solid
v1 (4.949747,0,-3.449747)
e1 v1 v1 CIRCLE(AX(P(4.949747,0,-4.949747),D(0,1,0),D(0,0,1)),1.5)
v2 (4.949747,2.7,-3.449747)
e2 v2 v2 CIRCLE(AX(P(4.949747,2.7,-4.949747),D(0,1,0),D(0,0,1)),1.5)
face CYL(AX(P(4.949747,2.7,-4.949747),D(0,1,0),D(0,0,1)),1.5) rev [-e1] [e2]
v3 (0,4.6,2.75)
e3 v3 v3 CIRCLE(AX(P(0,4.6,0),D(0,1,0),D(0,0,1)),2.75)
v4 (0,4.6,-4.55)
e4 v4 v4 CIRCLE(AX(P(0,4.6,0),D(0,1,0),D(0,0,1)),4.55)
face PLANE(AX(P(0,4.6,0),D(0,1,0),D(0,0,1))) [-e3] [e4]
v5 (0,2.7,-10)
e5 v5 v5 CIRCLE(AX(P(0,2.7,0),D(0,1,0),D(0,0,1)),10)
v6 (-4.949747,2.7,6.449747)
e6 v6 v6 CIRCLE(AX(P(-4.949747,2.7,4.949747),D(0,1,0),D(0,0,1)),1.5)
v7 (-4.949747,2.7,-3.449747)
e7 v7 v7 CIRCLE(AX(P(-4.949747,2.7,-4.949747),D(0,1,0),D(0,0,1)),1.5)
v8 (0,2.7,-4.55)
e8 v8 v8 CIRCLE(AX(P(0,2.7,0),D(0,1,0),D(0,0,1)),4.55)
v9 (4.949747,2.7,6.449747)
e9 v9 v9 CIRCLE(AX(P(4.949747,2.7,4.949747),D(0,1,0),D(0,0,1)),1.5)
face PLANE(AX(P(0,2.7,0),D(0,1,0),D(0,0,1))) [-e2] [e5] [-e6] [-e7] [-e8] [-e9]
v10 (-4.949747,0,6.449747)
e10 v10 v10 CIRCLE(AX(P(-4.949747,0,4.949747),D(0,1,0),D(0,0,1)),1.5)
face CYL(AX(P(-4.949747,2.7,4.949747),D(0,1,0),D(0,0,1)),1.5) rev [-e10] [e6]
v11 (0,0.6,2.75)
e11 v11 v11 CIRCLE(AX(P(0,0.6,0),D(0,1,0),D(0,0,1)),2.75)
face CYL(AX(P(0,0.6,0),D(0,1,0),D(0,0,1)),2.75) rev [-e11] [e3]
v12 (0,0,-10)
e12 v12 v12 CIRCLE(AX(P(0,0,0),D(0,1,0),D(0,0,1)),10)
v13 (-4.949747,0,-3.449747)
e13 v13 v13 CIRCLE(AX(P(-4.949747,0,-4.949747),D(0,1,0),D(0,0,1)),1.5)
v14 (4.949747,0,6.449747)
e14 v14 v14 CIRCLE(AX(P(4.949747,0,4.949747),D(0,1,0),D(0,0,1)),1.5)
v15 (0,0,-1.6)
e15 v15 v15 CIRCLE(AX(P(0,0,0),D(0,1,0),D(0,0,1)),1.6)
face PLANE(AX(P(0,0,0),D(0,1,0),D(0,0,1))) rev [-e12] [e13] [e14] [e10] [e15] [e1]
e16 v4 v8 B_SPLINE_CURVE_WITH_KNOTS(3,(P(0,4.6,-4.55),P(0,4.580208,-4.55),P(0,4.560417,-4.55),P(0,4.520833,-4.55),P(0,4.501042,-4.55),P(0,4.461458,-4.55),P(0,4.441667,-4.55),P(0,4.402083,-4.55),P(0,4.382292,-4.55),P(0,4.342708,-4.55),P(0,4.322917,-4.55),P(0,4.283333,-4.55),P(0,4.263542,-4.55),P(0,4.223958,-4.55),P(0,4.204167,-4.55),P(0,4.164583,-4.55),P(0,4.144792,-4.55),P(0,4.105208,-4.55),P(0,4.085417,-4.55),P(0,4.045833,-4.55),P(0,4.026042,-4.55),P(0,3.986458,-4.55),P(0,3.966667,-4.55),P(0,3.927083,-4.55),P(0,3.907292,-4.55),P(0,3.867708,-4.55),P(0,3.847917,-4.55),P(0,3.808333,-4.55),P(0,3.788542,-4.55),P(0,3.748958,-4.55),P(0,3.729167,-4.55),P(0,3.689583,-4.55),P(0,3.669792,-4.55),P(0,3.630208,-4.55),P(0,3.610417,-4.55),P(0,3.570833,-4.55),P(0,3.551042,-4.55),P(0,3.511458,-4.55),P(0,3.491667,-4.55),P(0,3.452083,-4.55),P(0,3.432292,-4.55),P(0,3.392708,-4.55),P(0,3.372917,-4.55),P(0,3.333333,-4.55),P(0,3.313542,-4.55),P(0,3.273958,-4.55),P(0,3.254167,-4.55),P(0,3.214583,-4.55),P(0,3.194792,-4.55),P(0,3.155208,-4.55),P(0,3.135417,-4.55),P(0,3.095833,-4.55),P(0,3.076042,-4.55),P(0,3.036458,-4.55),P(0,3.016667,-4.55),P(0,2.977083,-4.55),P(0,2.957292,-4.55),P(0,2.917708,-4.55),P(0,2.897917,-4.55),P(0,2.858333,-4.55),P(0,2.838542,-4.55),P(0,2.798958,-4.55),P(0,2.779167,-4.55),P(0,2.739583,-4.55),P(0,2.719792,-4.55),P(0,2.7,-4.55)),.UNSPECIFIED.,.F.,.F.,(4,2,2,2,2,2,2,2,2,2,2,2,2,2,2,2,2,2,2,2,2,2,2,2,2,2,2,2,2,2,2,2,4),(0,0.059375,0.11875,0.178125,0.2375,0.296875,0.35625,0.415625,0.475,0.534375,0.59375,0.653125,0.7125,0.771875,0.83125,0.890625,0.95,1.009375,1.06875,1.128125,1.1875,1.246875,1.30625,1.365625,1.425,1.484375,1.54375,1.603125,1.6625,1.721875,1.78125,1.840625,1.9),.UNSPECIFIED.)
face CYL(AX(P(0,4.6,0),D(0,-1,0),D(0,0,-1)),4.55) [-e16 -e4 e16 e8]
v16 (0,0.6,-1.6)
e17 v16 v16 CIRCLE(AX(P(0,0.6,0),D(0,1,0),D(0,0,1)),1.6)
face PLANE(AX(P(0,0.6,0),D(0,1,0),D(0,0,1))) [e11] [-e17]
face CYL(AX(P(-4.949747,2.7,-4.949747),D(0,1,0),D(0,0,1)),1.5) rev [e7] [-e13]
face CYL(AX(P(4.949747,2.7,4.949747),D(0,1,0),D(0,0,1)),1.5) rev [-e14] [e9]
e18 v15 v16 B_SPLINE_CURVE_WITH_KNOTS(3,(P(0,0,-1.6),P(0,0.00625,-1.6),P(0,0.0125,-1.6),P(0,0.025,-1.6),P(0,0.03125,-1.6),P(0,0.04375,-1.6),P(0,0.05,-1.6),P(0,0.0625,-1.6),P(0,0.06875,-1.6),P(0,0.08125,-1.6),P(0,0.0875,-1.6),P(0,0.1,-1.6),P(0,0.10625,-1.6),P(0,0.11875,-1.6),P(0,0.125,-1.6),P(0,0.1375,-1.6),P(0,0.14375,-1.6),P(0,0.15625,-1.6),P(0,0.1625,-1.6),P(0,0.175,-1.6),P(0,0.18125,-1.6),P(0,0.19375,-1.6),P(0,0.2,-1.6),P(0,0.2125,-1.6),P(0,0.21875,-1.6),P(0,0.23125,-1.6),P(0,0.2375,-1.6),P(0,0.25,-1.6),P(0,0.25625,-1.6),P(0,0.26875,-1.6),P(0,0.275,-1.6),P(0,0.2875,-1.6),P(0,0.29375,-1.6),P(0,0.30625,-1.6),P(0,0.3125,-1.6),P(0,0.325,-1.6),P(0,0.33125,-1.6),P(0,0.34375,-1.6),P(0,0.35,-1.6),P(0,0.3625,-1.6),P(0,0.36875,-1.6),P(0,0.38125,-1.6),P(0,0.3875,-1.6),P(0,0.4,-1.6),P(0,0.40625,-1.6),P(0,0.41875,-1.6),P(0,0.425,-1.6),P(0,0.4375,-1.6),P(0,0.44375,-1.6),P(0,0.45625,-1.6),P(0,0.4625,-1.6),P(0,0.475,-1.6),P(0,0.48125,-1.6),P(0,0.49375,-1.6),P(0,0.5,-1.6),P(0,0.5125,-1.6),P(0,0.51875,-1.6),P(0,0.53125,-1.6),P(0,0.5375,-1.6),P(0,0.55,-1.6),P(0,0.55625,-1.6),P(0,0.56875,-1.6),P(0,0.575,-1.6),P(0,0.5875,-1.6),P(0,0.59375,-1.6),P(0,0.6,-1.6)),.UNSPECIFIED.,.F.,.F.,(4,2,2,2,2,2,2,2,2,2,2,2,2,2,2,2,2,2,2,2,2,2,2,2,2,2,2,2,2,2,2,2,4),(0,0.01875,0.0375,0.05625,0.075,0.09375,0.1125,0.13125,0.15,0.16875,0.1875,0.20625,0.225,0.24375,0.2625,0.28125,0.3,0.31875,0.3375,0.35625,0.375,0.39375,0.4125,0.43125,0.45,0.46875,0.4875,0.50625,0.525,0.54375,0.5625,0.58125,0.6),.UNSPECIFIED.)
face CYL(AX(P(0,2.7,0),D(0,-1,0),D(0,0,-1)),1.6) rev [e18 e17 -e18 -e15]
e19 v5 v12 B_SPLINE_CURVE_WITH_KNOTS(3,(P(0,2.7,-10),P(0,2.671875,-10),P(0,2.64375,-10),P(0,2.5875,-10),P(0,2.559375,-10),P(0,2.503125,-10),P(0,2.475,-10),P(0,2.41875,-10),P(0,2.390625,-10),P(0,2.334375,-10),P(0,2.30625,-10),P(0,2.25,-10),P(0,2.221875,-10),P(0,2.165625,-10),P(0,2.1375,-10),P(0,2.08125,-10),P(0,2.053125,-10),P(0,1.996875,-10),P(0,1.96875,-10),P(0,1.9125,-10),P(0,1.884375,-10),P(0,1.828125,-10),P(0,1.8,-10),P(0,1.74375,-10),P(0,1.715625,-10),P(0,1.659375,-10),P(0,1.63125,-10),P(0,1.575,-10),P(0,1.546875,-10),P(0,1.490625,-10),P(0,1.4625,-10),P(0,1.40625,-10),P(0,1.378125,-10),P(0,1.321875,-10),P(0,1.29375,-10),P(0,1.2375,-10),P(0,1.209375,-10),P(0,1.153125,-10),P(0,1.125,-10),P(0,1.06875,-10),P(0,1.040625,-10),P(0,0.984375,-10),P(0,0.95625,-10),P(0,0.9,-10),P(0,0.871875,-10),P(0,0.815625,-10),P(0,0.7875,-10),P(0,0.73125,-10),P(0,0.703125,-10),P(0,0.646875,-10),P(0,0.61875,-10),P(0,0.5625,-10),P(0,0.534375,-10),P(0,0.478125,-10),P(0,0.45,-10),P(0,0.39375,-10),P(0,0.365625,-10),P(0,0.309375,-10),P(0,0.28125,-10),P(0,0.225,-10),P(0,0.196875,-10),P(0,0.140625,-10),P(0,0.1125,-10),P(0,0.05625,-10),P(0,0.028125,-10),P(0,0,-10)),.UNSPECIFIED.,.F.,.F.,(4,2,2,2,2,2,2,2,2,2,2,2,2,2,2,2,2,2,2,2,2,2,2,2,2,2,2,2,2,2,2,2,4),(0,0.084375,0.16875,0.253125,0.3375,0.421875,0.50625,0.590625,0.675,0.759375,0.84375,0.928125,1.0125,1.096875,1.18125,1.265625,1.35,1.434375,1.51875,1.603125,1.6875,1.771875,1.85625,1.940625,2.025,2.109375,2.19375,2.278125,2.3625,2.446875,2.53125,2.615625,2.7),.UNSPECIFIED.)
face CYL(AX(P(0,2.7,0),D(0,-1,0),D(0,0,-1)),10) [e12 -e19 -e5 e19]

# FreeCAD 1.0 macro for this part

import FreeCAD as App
import Part
import Sketcher
from FreeCAD import Vector
Q = App.Units.Quantity

doc = App.newDocument("Part")
params = doc.addObject("Spreadsheet::Sheet", "Params")
for row, (alias, value) in enumerate([
    ("sketch1_diameter", "20 mm"),
    ("sketch1_diameter2", "3.2 mm"),
    ("pad1_length", "2.7 mm"),
    ("sketch2_diameter", "9.1 mm"),
    ("pad2_length", "1.9 mm"),
    ("sketch3_diameter", "5.5 mm"),
    ("pocket1_length", "4 mm"),
    ("sketch4_diameter", "3 mm"),
    ("hole_diameter", "3 mm"),
], start=1):
    params.set(f"A{row}", alias)
    params.set(f"B{row}", "=" + value)
    params.setAlias(f"B{row}", alias)

body = doc.addObject("PartDesign::Body", "Body")

# Sketch on XZ plane
sketch1 = doc.addObject("Sketcher::SketchObject", "Sketch")
body.addObject(sketch1)
sketch1.AttachmentSupport = (doc.XZ_Plane, [""])
sketch1.MapMode = "FlatFace"
sketch1.addGeometry([
    Part.Circle(Vector(0, 0, 0), Vector(0, 0, 1), 10),
    Part.Circle(Vector(0, 0, 0), Vector(0, 0, 1), 1.6),
], False)
sketch1.addConstraint([
    Sketcher.Constraint("Coincident", 0, 3, -1, 1),
    Sketcher.Constraint("Coincident", 1, 3, -1, 1),
    Sketcher.Constraint("Diameter", 0, Q("20 mm")),
    Sketcher.Constraint("Diameter", 1, Q("3.2 mm")),
])
sketch1.setExpression("Constraints[2]", "Params.sketch1_diameter")
sketch1.setExpression("Constraints[3]", "Params.sketch1_diameter2")
pad1 = doc.addObject("PartDesign::Pad", "Pad")
body.addObject(pad1)
pad1.Profile = sketch1
pad1.setExpression("Length", "Params.pad1_length")
pad1.Reversed = True

# Sketch on XZ plane
sketch2 = doc.addObject("Sketcher::SketchObject", "Sketch001")
body.addObject(sketch2)
sketch2.AttachmentSupport = (doc.XZ_Plane, [""])
sketch2.MapMode = "FlatFace"
sketch2.AttachmentOffset = App.Placement(Vector(0, 0, -2.7), App.Rotation())
sketch2.addGeometry(Part.Circle(Vector(0, 0, 0), Vector(0, 0, 1), 4.5), False)
sketch2.addConstraint([
    Sketcher.Constraint("Coincident", 0, 3, -1, 1),
    Sketcher.Constraint("Diameter", 0, Q("9.1 mm")),
])
sketch2.setExpression("Constraints[1]", "Params.sketch2_diameter")
pad2 = doc.addObject("PartDesign::Pad", "Pad001")
body.addObject(pad2)
pad2.Profile = sketch2
pad2.setExpression("Length", "Params.pad2_length")
pad2.Reversed = True

# Sketch on XZ plane
sketch3 = doc.addObject("Sketcher::SketchObject", "Sketch002")
body.addObject(sketch3)
sketch3.AttachmentSupport = (doc.XZ_Plane, [""])
sketch3.MapMode = "FlatFace"
sketch3.AttachmentOffset = App.Placement(Vector(0, 0, -4.6), App.Rotation())
sketch3.addGeometry(Part.Circle(Vector(0, 0, 0), Vector(0, 0, 1), 2.8), False)
sketch3.addConstraint([
    Sketcher.Constraint("Coincident", 0, 3, -1, 1),
    Sketcher.Constraint("Diameter", 0, Q("5.5 mm")),
])
sketch3.setExpression("Constraints[1]", "Params.sketch3_diameter")
pocket1 = doc.addObject("PartDesign::Pocket", "Pocket")
body.addObject(pocket1)
pocket1.Profile = sketch3
pocket1.setExpression("Length", "Params.pocket1_length")
pocket1.Reversed = True

# Sketch on XZ plane
sketch4 = doc.addObject("Sketcher::SketchObject", "Sketch003")
body.addObject(sketch4)
sketch4.AttachmentSupport = (doc.XZ_Plane, [""])
sketch4.MapMode = "FlatFace"
sketch4.AttachmentOffset = App.Placement(Vector(0, 0, -2.7), App.Rotation())
sketch4.addGeometry([
    Part.Circle(Vector(4.9, 4.9, 0), Vector(0, 0, 1), 1.5),
    Part.Circle(Vector(-4.9, 4.9, 0), Vector(0, 0, 1), 1.5),
    Part.Circle(Vector(-4.9, -4.9, 0), Vector(0, 0, 1), 1.5),
    Part.Circle(Vector(4.9, -4.9, 0), Vector(0, 0, 1), 1.5),
], False)
sketch4.addConstraint([
    Sketcher.Constraint("Equal", 0, 1),
    Sketcher.Constraint("Equal", 1, 2),
    Sketcher.Constraint("Equal", 2, 3),
    Sketcher.Constraint("Symmetric", 0, 3, 2, 3, -1, 1),
    Sketcher.Constraint("Symmetric", 1, 3, 3, 3, -1, 1),
    Sketcher.Constraint("Symmetric", 0, 3, 1, 3, -2),
    Sketcher.Constraint("Diameter", 0, Q("3 mm")),
    Sketcher.Constraint("DistanceX", -1, 1, 0, 3, Q("4.949747 mm")),
    Sketcher.Constraint("DistanceY", -1, 1, 0, 3, Q("4.949747 mm")),
])
sketch4.setExpression("Constraints[6]", "Params.sketch4_diameter")
doc.recompute()
hole = doc.addObject("PartDesign::Hole", "Hole")
body.addObject(hole)
hole.Profile = sketch4
hole.ThreadType = "None"
hole.setExpression("Diameter", "Params.hole_diameter")
hole.DepthType = "ThroughAll"
hole.Reversed = True

doc.recompute()
